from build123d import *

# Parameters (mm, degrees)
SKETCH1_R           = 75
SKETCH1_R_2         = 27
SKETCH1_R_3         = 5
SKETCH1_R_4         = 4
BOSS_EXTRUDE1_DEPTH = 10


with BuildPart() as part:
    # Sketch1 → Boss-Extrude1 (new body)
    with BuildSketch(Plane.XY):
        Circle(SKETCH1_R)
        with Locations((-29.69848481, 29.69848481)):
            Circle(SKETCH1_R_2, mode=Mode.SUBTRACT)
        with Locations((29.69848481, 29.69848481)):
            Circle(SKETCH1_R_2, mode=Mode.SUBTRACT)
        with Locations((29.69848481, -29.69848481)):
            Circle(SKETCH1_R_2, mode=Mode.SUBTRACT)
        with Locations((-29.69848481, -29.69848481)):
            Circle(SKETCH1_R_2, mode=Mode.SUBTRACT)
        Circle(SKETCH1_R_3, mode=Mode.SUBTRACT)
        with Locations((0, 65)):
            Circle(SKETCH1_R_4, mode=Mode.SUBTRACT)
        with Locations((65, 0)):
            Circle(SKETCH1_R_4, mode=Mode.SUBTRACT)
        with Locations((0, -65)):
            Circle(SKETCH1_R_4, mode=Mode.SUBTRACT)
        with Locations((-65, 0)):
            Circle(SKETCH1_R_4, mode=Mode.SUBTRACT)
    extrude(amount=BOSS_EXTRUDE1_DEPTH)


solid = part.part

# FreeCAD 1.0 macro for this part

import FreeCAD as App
import Part
import Sketcher

V = App.Vector

doc = App.newDocument("Part")
body = doc.addObject("PartDesign::Body", "Body")

# Sketch on XY plane
sketch1 = body.newObject("Sketcher::SketchObject", "Sketch")
sketch1.AttachmentSupport = (doc.getObject("XY_Plane"), [""])
sketch1.MapMode = "FlatFace"
sketch1.addGeometry([
    Part.Circle(V(0, 0, 0), V(0, 0, 1), 75),  # 0
    Part.Circle(V(-29.698485, -29.698485, 0), V(0, 0, 1), 27),  # 1
    Part.Circle(V(0, -65, 0), V(0, 0, 1), 4),  # 2
    Part.Circle(V(29.698485, -29.698485, 0), V(0, 0, 1), 27),  # 3
    Part.Circle(V(-65, 0, 0), V(0, 0, 1), 4),  # 4
    Part.Circle(V(-29.698485, 29.698485, 0), V(0, 0, 1), 27),  # 5
    Part.Circle(V(0, 0, 0), V(0, 0, 1), 5),  # 6
    Part.Circle(V(29.698485, 29.698485, 0), V(0, 0, 1), 27),  # 7
    Part.Circle(V(65, 0, 0), V(0, 0, 1), 4),  # 8
    Part.Circle(V(0, 65, 0), V(0, 0, 1), 4),  # 9
], False)
sketch1.addConstraint([
    Sketcher.Constraint("Coincident", 0, 3, -1, 1),
    Sketcher.Constraint("Coincident", 6, 3, -1, 1),
    Sketcher.Constraint("Equal", 1, 3),
    Sketcher.Constraint("Equal", 2, 4),
    Sketcher.Constraint("Equal", 3, 5),
    Sketcher.Constraint("Equal", 5, 7),
    Sketcher.Constraint("Equal", 4, 8),
    Sketcher.Constraint("Equal", 8, 9),
    Sketcher.Constraint("Symmetric", 3, 3, 5, 3, -1, 1),
    Sketcher.Constraint("Symmetric", 1, 3, 7, 3, -1, 1),
    Sketcher.Constraint("Symmetric", 4, 3, 8, 3, -1, 1),
    Sketcher.Constraint("Symmetric", 2, 3, 9, 3, -1, 1),
    Sketcher.Constraint("Symmetric", 1, 3, 3, 3, -2),
    Sketcher.Constraint("PointOnObject", 2, 3, -2),
    Sketcher.Constraint("PointOnObject", 4, 3, -1),
    Sketcher.Constraint("Diameter", 0, 150.0),
    Sketcher.Constraint("Diameter", 1, 54.0),
    Sketcher.Constraint("Diameter", 2, 8.0),
    Sketcher.Constraint("Diameter", 6, 10.0),
    Sketcher.Constraint("DistanceY", 2, 3, -1, 1, 65.0),
    Sketcher.Constraint("DistanceX", 4, 3, -1, 1, 65.0),
    Sketcher.Constraint("DistanceX", 1, 3, 3, 3, 59.39697),
    Sketcher.Constraint("DistanceY", 1, 3, 5, 3, 59.39697),
])
pad1 = body.newObject("PartDesign::Pad", "Pad")
pad1.Profile = sketch1
pad1.Length = 10

doc.recompute()
